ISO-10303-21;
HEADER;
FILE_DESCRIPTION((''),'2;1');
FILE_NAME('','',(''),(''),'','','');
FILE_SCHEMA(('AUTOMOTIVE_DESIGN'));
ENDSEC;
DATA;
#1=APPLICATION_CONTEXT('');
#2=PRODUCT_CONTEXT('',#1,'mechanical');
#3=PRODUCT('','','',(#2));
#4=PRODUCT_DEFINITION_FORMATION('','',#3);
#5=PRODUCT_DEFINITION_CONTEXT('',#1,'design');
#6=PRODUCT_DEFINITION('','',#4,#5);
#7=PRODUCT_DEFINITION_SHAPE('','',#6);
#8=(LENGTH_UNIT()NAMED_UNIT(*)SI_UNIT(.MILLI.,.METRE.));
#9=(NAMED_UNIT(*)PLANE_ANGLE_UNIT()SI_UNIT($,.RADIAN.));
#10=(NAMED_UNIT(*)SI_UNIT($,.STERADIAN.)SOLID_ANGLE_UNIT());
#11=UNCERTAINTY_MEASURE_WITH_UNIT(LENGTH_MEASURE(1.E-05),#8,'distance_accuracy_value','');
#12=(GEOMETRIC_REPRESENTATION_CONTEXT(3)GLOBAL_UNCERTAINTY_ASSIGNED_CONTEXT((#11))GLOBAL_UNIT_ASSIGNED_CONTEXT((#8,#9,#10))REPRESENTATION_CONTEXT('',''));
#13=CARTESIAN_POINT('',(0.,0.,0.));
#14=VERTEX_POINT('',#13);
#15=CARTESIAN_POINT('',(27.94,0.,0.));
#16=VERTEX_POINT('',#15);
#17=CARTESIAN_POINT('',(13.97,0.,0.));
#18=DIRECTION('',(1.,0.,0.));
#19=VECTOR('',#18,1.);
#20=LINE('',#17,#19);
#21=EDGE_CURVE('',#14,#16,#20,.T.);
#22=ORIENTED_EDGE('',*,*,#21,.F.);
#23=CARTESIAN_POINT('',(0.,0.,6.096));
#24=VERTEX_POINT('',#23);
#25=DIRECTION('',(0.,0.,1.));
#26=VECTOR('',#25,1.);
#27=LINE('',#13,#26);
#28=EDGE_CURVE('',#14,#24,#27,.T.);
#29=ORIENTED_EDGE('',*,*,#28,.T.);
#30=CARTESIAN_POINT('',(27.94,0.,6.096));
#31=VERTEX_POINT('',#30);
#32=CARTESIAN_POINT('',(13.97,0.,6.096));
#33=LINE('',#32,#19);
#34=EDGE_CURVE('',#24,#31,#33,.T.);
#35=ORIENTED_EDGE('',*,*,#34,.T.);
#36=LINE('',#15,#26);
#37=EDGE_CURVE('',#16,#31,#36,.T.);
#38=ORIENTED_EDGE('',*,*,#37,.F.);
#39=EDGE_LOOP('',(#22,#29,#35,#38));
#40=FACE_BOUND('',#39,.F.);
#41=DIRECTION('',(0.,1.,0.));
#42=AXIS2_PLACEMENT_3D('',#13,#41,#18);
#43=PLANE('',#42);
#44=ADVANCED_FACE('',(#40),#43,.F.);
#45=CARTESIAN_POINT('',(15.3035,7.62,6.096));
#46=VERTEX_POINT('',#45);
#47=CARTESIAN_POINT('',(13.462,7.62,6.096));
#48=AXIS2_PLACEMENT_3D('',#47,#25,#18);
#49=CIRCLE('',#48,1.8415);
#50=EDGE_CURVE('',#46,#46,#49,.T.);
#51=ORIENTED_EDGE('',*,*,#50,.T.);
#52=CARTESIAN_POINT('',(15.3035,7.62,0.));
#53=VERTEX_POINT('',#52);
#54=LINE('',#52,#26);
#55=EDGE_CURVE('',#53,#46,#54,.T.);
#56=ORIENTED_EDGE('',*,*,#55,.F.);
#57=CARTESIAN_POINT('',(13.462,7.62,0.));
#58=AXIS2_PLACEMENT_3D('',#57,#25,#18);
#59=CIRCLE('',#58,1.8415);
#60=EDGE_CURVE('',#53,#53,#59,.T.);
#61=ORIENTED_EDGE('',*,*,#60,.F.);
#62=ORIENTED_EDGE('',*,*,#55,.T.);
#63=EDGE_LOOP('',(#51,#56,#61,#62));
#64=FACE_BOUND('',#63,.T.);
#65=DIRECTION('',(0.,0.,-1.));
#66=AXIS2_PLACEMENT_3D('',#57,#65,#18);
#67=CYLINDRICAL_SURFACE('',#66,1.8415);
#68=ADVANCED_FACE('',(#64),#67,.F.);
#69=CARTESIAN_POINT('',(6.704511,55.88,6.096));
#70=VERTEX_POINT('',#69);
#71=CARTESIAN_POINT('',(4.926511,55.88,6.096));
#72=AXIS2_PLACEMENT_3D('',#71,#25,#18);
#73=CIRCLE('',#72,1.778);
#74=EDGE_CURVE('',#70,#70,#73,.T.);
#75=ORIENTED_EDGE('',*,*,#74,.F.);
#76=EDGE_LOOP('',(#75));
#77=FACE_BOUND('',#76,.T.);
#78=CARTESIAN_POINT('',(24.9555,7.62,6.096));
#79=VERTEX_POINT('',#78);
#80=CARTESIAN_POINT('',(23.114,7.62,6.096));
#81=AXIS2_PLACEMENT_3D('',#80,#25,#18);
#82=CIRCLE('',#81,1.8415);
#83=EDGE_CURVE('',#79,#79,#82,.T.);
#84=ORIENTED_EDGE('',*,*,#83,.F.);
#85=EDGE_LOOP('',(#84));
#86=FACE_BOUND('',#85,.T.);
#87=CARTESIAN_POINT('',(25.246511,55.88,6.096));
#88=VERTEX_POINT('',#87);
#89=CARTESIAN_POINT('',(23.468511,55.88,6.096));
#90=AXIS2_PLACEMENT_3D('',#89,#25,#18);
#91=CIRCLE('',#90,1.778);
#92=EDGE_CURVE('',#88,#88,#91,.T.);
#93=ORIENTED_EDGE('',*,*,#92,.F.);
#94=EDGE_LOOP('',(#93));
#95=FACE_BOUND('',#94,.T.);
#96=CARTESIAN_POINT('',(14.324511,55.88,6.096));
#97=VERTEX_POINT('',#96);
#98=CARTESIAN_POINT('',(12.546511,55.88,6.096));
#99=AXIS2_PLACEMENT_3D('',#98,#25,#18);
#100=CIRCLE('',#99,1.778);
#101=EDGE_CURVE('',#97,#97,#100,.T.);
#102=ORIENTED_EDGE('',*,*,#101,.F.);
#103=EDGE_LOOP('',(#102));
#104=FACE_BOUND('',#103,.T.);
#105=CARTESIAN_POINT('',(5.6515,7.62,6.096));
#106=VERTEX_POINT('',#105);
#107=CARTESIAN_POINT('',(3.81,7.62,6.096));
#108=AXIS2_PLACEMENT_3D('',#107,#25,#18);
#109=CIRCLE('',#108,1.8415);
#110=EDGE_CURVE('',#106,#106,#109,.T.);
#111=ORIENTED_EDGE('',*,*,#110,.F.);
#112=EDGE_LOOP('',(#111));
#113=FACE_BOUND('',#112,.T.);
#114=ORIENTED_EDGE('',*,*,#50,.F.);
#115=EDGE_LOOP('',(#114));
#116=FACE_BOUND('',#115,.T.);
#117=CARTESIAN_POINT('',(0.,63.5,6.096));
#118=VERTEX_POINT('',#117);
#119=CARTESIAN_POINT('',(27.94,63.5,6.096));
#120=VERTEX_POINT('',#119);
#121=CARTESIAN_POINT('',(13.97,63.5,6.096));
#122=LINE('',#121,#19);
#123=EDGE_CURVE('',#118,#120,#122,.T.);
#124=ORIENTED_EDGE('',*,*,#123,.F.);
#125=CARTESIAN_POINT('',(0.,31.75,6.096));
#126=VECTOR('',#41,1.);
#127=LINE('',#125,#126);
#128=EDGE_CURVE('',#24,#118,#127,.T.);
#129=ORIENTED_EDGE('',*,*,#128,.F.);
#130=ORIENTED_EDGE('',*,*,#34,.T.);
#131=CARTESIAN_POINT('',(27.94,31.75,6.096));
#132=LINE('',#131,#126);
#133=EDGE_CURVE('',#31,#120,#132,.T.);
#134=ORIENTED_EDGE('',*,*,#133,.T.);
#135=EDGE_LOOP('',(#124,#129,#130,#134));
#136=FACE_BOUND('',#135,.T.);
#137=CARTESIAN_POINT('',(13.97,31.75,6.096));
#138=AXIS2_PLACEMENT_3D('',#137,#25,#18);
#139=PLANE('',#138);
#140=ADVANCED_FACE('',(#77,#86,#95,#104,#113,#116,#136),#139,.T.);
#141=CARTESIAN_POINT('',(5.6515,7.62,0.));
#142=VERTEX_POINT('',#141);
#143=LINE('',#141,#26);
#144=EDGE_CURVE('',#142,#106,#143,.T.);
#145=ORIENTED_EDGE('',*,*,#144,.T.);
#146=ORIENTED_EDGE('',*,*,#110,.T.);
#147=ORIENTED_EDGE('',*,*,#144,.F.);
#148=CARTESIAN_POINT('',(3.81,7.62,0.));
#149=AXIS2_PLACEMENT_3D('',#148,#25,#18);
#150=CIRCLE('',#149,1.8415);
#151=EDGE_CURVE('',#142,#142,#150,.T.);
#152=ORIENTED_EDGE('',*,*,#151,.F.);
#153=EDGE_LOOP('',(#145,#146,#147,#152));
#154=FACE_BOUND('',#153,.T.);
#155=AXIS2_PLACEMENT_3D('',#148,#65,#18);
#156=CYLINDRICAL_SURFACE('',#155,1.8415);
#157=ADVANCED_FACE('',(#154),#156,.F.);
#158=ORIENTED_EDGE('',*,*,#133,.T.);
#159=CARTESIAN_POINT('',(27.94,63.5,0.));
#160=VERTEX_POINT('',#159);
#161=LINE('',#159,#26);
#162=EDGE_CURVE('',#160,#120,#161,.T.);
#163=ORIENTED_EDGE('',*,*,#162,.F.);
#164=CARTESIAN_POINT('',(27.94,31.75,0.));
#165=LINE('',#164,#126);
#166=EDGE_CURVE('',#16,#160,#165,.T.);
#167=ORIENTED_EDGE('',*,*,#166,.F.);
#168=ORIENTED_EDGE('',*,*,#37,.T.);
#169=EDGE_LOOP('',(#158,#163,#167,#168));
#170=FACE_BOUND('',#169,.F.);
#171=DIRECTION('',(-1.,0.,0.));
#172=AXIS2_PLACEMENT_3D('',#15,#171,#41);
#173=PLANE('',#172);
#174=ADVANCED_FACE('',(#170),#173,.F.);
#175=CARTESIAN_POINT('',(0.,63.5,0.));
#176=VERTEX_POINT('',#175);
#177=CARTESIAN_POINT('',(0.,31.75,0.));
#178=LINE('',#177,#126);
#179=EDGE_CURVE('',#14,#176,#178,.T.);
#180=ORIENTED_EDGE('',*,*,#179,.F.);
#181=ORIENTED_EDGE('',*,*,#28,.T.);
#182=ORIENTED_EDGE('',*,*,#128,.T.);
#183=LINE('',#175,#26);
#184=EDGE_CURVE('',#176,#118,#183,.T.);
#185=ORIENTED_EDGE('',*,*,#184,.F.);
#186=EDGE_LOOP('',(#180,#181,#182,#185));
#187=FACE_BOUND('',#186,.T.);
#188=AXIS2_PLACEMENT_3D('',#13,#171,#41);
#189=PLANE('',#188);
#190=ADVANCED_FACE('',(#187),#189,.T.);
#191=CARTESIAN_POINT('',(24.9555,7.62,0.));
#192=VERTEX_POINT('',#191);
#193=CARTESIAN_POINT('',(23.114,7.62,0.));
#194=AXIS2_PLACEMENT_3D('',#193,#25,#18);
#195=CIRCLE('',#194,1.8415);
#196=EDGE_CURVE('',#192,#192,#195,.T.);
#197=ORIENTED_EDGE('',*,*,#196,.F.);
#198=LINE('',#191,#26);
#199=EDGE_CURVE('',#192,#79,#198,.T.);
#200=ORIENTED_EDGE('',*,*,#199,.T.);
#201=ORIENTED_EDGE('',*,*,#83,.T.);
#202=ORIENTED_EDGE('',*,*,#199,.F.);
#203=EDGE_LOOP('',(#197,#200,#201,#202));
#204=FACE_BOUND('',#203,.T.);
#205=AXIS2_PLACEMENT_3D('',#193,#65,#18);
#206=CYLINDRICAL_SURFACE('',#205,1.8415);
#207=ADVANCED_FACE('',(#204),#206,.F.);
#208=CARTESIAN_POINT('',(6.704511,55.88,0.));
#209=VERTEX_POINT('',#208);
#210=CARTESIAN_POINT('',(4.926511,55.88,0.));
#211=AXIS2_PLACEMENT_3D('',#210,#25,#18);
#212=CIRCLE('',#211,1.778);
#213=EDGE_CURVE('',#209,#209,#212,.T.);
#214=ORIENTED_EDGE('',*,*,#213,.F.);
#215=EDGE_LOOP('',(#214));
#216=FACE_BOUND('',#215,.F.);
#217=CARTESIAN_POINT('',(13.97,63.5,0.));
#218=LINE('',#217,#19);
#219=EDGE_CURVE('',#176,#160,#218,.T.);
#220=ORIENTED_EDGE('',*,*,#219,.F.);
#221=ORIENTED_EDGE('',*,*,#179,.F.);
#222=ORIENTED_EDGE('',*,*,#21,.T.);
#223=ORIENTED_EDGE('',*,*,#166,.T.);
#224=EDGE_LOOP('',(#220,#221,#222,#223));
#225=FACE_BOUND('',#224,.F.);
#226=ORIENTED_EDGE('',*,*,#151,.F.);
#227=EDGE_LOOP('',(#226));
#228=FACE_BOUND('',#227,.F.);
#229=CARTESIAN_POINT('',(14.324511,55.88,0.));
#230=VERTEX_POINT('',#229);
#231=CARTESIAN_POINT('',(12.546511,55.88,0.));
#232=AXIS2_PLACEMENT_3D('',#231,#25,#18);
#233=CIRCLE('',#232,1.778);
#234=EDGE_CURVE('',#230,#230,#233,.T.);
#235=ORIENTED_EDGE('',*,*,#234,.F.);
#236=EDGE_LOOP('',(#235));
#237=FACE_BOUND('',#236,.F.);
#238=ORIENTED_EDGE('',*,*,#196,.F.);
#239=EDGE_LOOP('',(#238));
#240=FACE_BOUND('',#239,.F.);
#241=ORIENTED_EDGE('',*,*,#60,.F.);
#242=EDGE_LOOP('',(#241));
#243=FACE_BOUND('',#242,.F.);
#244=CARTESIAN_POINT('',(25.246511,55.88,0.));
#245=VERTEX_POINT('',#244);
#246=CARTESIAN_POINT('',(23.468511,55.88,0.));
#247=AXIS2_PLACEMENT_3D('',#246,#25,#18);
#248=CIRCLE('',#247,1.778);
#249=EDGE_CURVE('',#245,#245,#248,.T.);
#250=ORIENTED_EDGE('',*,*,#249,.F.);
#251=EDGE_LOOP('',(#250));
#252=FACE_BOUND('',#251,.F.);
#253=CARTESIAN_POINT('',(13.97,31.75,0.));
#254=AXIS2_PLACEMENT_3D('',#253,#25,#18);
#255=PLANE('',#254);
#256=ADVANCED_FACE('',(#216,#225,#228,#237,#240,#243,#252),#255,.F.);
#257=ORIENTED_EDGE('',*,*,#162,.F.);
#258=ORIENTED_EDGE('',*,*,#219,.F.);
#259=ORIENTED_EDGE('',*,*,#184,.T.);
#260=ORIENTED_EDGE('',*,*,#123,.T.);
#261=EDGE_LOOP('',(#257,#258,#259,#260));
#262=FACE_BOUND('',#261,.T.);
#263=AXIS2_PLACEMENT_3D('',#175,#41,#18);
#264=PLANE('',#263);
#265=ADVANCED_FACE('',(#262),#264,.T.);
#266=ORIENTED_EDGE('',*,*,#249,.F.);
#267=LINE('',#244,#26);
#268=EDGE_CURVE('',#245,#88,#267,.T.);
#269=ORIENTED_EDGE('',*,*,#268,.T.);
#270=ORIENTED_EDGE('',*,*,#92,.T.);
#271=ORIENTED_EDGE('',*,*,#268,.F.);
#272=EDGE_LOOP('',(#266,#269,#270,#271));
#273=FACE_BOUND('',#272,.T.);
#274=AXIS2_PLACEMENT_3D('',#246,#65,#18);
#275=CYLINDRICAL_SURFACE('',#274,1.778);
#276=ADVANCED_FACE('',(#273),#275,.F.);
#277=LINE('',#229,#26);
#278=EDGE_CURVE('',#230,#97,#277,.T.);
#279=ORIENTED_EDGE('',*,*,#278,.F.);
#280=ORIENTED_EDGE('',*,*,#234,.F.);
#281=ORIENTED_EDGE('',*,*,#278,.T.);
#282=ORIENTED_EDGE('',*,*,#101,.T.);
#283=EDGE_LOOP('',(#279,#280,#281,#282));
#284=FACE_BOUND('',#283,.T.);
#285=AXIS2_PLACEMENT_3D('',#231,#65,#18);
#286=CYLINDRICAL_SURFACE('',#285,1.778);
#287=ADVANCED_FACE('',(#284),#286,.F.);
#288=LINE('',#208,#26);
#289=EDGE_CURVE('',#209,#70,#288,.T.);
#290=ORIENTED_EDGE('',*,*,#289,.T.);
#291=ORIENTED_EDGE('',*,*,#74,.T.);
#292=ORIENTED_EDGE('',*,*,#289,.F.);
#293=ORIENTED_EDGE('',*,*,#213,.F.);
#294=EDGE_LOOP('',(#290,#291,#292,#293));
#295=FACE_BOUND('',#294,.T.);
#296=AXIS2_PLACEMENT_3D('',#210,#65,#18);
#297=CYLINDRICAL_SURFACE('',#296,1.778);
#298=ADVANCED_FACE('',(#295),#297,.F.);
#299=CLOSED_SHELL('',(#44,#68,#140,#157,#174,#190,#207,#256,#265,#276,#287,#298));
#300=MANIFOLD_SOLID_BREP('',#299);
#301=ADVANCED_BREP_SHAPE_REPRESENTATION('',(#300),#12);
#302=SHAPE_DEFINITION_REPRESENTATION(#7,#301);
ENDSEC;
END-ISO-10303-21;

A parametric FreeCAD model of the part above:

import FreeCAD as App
import Part
import Sketcher

V = App.Vector
Q = App.Units.Quantity

doc = App.newDocument("Part")
params = doc.addObject("Spreadsheet::Sheet", "Params")
for row, (alias, value) in enumerate([
    ("sketch1_diameter", "0.14 in"),
    ("sketch1_diameter2", "0.145 in"),
    ("sketch1_width", "1.1 in"),
    ("sketch1_height", "2.5 in"),
    ("pad1_length", "0.24 in"),
], start=1):
    params.set(f"A{row}", alias)
    params.set(f"B{row}", "=" + value)
    params.setAlias(f"B{row}", alias)

body = doc.addObject("PartDesign::Body", "Body")

sketch1 = doc.addObject("Sketcher::SketchObject", "Sketch")
body.addObject(sketch1)
sketch1.AttachmentSupport = (doc.XY_Plane, [""])
sketch1.MapMode = "FlatFace"
sketch1.addGeometry(Part.LineSegment(V(0, 63.5, 0), V(0, 0, 0)), False)
sketch1.addGeometry(Part.LineSegment(V(0, 0, 0), V(27.9, 0, 0)), False)
sketch1.addGeometry(Part.LineSegment(V(27.9, 0, 0), V(27.9, 63.5, 0)), False)
sketch1.addGeometry(Part.LineSegment(V(27.9, 63.5, 0), V(0, 63.5, 0)), False)
sketch1.addGeometry(Part.Circle(V(3.8, 7.6, 0), V(0, 0, 1), 1.8), False)
sketch1.addGeometry(Part.Circle(V(13.5, 7.6, 0), V(0, 0, 1), 1.8), False)
sketch1.addGeometry(Part.Circle(V(23.1, 7.6, 0), V(0, 0, 1), 1.8), False)
sketch1.addGeometry(Part.Circle(V(4.9, 55.9, 0), V(0, 0, 1), 1.8), False)
sketch1.addGeometry(Part.Circle(V(12.5, 55.9, 0), V(0, 0, 1), 1.8), False)
sketch1.addGeometry(Part.Circle(V(23.5, 55.9, 0), V(0, 0, 1), 1.8), False)
sketch1.addConstraint(Sketcher.Constraint("Coincident", 0, 2, 1, 1))
sketch1.addConstraint(Sketcher.Constraint("Coincident", 1, 2, 2, 1))
sketch1.addConstraint(Sketcher.Constraint("Coincident", 2, 2, 3, 1))
sketch1.addConstraint(Sketcher.Constraint("Coincident", 3, 2, 0, 1))
sketch1.addConstraint(Sketcher.Constraint("Vertical", 0))
sketch1.addConstraint(Sketcher.Constraint("Horizontal", 1))
sketch1.addConstraint(Sketcher.Constraint("Vertical", 2))
sketch1.addConstraint(Sketcher.Constraint("Horizontal", 3))
sketch1.addConstraint(Sketcher.Constraint("Coincident", 0, 2, -1, 1))
sketch1.addConstraint(Sketcher.Constraint("Equal", 4, 5))
sketch1.addConstraint(Sketcher.Constraint("Equal", 5, 6))
sketch1.addConstraint(Sketcher.Constraint("Equal", 7, 8))
sketch1.addConstraint(Sketcher.Constraint("Equal", 8, 9))
sketch1.addConstraint(Sketcher.Constraint("Horizontal", 4, 3, 5, 3))
sketch1.addConstraint(Sketcher.Constraint("Horizontal", 5, 3, 6, 3))
sketch1.addConstraint(Sketcher.Constraint("Horizontal", 7, 3, 8, 3))
sketch1.addConstraint(Sketcher.Constraint("Horizontal", 8, 3, 9, 3))
sketch1.addConstraint(Sketcher.Constraint("Diameter", 7, Q("0.14 in")))
sketch1.addConstraint(Sketcher.Constraint("Diameter", 4, Q("0.145 in")))
sketch1.addConstraint(Sketcher.Constraint("DistanceX", 1, 1, 1, 2, Q("1.1 in")))
sketch1.addConstraint(Sketcher.Constraint("DistanceY", 0, 2, 0, 1, Q("2.5 in")))
sketch1.addConstraint(Sketcher.Constraint("DistanceY", -1, 1, 4, 3, Q("0.3 in")))
sketch1.addConstraint(Sketcher.Constraint("DistanceY", -1, 1, 7, 3, Q("2.2 in")))
sketch1.addConstraint(Sketcher.Constraint("DistanceX", 7, 3, 8, 3, Q("0.3 in")))
sketch1.addConstraint(Sketcher.Constraint("DistanceX", -1, 1, 4, 3, Q("0.15 in")))
sketch1.addConstraint(Sketcher.Constraint("DistanceX", -1, 1, 5, 3, Q("0.53 in")))
sketch1.addConstraint(Sketcher.Constraint("DistanceX", -1, 1, 6, 3, Q("0.91 in")))
sketch1.addConstraint(Sketcher.Constraint("DistanceX", 8, 3, 9, 3, Q("0.43 in")))
sketch1.addConstraint(Sketcher.Constraint("DistanceX", -1, 1, 7, 3, Q("4.926511 mm")))
sketch1.setExpression("Constraints[17]", "Params.sketch1_diameter")
sketch1.setExpression("Constraints[18]", "Params.sketch1_diameter2")
sketch1.setExpression("Constraints[19]", "Params.sketch1_width")
sketch1.setExpression("Constraints[20]", "Params.sketch1_height")
pad1 = doc.addObject("PartDesign::Pad", "Pad")
body.addObject(pad1)
pad1.Profile = sketch1
pad1.setExpression("Length", "Params.pad1_length")

doc.recompute()
